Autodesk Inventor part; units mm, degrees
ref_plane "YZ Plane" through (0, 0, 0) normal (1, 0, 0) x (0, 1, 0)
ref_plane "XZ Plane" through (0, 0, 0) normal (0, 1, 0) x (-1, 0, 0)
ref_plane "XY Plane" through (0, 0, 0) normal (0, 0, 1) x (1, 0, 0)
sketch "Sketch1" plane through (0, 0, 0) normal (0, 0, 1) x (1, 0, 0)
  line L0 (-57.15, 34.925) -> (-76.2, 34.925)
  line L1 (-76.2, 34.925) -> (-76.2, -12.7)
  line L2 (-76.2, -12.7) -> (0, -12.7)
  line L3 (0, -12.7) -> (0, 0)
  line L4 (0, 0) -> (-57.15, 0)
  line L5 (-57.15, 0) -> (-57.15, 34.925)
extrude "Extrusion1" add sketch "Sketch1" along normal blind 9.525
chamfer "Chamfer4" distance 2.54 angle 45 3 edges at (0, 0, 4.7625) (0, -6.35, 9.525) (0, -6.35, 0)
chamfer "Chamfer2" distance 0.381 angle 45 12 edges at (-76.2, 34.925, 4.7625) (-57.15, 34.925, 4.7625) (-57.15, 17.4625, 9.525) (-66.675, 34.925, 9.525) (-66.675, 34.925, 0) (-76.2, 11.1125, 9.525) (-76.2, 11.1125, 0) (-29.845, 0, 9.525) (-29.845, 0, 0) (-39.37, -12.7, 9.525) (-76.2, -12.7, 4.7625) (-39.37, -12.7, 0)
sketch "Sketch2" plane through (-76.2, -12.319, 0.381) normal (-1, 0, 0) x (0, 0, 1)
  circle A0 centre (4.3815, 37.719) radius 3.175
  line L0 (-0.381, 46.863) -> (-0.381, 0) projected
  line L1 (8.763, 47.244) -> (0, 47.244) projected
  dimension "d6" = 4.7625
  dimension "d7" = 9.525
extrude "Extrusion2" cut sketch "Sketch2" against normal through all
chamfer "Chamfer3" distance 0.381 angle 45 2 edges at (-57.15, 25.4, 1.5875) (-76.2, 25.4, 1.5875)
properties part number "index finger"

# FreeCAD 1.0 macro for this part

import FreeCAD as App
import Part
import Sketcher
from FreeCAD import Vector
Q = App.Units.Quantity


def edges_at(feature, points):
    """Names of the edges that pass closest to the given points."""
    edges = feature.Shape.Edges
    near = lambda p: min(range(len(edges)), key=lambda i: edges[i].distToShape(Part.Vertex(*p))[0])
    return sorted({f"Edge{near(p) + 1}" for p in points})

doc = App.newDocument("Part")
body = doc.addObject("PartDesign::Body", "Body")

# Sketch on XY plane
sketch1 = body.newObject("Sketcher::SketchObject", "Sketch")
sketch1.AttachmentSupport = (doc.getObject("XY_Plane"), [""])
sketch1.MapMode = "FlatFace"
sketch1.addGeometry(Part.LineSegment(Vector(-57.15, 0, 0), Vector(-57.15, 34.925, 0)), False)
sketch1.addGeometry(Part.LineSegment(Vector(-57.15, 34.925, 0), Vector(-76.2, 34.925, 0)), False)
sketch1.addGeometry(Part.LineSegment(Vector(-76.2, 34.925, 0), Vector(-76.2, -12.7, 0)), False)
sketch1.addGeometry(Part.LineSegment(Vector(-76.2, -12.7, 0), Vector(0, -12.7, 0)), False)
sketch1.addGeometry(Part.LineSegment(Vector(0, -12.7, 0), Vector(0, 0, 0)), False)
sketch1.addGeometry(Part.LineSegment(Vector(0, 0, 0), Vector(-57.15, 0, 0)), False)
sketch1.addConstraint(Sketcher.Constraint("Coincident", 0, 2, 1, 1))
sketch1.addConstraint(Sketcher.Constraint("Coincident", 1, 2, 2, 1))
sketch1.addConstraint(Sketcher.Constraint("Coincident", 2, 2, 3, 1))
sketch1.addConstraint(Sketcher.Constraint("Coincident", 3, 2, 4, 1))
sketch1.addConstraint(Sketcher.Constraint("Coincident", 4, 2, 5, 1))
sketch1.addConstraint(Sketcher.Constraint("Coincident", 5, 2, 0, 1))
sketch1.addConstraint(Sketcher.Constraint("Vertical", 0))
sketch1.addConstraint(Sketcher.Constraint("Horizontal", 1))
sketch1.addConstraint(Sketcher.Constraint("Vertical", 2))
sketch1.addConstraint(Sketcher.Constraint("Horizontal", 3))
sketch1.addConstraint(Sketcher.Constraint("Vertical", 4))
sketch1.addConstraint(Sketcher.Constraint("Horizontal", 5))
sketch1.addConstraint(Sketcher.Constraint("Coincident", 4, 2, -1, 1))
sketch1.addConstraint(Sketcher.Constraint("DistanceX", 3, 1, 3, 2, Q("3 in")))
sketch1.addConstraint(Sketcher.Constraint("DistanceY", 4, 1, 4, 2, Q("0.5 in")))
sketch1.addConstraint(Sketcher.Constraint("DistanceX", 1, 2, 1, 1, Q("0.75 in")))
sketch1.addConstraint(Sketcher.Constraint("DistanceY", 0, 1, 0, 2, Q("1.375 in")))
pad1 = body.newObject("PartDesign::Pad", "Pad")
pad1.Profile = sketch1
pad1.Length = Q("0.375 in")
doc.recompute()

chamfer = body.newObject("PartDesign::Chamfer", "Chamfer")
chamfer.Base = (pad1, edges_at(pad1, [(0, 0, 4.763), (0, -6.35, 9.525), (0, -6.35, 0)]))
chamfer.Size = Q("0.1 in")
doc.recompute()

chamfer2 = body.newObject("PartDesign::Chamfer", "Chamfer001")
chamfer2.Base = (chamfer, edges_at(chamfer, [
    (-76.2, 34.925, 4.763),
    (-57.15, 34.925, 4.763),
    (-57.15, 17.462, 9.525),
    (-66.675, 34.925, 9.525),
    (-66.675, 34.925, 0),
    (-76.2, 11.113, 9.525),
    (-76.2, 11.113, 0),
    (-29.845, 0, 9.525),
    (-29.845, 0, 0),
    (-39.37, -12.7, 9.525),
    (-76.2, -12.7, 4.763),
    (-39.37, -12.7, 0),
]))
chamfer2.Size = Q("0.015 in")

# Sketch on YZ plane
sketch2 = body.newObject("Sketcher::SketchObject", "Sketch001")
sketch2.AttachmentSupport = (doc.getObject("YZ_Plane"), [""])
sketch2.MapMode = "FlatFace"
sketch2.AttachmentOffset = App.Placement(Vector(0, 0, -3 * 25.4), App.Rotation())
sketch2.addGeometry(Part.Circle(Vector(25.4, 4.7625, 0), Vector(0, 0, 1), 3.175), False)
sketch2.addConstraint(Sketcher.Constraint("Diameter", 0, Q("0.25 in")))
sketch2.addConstraint(Sketcher.Constraint("DistanceX", -1, 1, 0, 3, Q("1 in")))
sketch2.addConstraint(Sketcher.Constraint("DistanceY", -1, 1, 0, 3, Q("0.1875 in")))
pocket1 = body.newObject("PartDesign::Pocket", "Pocket")
pocket1.Profile = sketch2
pocket1.Type = "ThroughAll"
pocket1.Reversed = True
doc.recompute()

chamfer3 = body.newObject("PartDesign::Chamfer", "Chamfer002")
chamfer3.Base = (pocket1, edges_at(pocket1, [(-57.15, 25.4, 1.587), (-76.2, 25.4, 1.587)]))
chamfer3.Size = Q("0.015 in")

doc.recompute()
